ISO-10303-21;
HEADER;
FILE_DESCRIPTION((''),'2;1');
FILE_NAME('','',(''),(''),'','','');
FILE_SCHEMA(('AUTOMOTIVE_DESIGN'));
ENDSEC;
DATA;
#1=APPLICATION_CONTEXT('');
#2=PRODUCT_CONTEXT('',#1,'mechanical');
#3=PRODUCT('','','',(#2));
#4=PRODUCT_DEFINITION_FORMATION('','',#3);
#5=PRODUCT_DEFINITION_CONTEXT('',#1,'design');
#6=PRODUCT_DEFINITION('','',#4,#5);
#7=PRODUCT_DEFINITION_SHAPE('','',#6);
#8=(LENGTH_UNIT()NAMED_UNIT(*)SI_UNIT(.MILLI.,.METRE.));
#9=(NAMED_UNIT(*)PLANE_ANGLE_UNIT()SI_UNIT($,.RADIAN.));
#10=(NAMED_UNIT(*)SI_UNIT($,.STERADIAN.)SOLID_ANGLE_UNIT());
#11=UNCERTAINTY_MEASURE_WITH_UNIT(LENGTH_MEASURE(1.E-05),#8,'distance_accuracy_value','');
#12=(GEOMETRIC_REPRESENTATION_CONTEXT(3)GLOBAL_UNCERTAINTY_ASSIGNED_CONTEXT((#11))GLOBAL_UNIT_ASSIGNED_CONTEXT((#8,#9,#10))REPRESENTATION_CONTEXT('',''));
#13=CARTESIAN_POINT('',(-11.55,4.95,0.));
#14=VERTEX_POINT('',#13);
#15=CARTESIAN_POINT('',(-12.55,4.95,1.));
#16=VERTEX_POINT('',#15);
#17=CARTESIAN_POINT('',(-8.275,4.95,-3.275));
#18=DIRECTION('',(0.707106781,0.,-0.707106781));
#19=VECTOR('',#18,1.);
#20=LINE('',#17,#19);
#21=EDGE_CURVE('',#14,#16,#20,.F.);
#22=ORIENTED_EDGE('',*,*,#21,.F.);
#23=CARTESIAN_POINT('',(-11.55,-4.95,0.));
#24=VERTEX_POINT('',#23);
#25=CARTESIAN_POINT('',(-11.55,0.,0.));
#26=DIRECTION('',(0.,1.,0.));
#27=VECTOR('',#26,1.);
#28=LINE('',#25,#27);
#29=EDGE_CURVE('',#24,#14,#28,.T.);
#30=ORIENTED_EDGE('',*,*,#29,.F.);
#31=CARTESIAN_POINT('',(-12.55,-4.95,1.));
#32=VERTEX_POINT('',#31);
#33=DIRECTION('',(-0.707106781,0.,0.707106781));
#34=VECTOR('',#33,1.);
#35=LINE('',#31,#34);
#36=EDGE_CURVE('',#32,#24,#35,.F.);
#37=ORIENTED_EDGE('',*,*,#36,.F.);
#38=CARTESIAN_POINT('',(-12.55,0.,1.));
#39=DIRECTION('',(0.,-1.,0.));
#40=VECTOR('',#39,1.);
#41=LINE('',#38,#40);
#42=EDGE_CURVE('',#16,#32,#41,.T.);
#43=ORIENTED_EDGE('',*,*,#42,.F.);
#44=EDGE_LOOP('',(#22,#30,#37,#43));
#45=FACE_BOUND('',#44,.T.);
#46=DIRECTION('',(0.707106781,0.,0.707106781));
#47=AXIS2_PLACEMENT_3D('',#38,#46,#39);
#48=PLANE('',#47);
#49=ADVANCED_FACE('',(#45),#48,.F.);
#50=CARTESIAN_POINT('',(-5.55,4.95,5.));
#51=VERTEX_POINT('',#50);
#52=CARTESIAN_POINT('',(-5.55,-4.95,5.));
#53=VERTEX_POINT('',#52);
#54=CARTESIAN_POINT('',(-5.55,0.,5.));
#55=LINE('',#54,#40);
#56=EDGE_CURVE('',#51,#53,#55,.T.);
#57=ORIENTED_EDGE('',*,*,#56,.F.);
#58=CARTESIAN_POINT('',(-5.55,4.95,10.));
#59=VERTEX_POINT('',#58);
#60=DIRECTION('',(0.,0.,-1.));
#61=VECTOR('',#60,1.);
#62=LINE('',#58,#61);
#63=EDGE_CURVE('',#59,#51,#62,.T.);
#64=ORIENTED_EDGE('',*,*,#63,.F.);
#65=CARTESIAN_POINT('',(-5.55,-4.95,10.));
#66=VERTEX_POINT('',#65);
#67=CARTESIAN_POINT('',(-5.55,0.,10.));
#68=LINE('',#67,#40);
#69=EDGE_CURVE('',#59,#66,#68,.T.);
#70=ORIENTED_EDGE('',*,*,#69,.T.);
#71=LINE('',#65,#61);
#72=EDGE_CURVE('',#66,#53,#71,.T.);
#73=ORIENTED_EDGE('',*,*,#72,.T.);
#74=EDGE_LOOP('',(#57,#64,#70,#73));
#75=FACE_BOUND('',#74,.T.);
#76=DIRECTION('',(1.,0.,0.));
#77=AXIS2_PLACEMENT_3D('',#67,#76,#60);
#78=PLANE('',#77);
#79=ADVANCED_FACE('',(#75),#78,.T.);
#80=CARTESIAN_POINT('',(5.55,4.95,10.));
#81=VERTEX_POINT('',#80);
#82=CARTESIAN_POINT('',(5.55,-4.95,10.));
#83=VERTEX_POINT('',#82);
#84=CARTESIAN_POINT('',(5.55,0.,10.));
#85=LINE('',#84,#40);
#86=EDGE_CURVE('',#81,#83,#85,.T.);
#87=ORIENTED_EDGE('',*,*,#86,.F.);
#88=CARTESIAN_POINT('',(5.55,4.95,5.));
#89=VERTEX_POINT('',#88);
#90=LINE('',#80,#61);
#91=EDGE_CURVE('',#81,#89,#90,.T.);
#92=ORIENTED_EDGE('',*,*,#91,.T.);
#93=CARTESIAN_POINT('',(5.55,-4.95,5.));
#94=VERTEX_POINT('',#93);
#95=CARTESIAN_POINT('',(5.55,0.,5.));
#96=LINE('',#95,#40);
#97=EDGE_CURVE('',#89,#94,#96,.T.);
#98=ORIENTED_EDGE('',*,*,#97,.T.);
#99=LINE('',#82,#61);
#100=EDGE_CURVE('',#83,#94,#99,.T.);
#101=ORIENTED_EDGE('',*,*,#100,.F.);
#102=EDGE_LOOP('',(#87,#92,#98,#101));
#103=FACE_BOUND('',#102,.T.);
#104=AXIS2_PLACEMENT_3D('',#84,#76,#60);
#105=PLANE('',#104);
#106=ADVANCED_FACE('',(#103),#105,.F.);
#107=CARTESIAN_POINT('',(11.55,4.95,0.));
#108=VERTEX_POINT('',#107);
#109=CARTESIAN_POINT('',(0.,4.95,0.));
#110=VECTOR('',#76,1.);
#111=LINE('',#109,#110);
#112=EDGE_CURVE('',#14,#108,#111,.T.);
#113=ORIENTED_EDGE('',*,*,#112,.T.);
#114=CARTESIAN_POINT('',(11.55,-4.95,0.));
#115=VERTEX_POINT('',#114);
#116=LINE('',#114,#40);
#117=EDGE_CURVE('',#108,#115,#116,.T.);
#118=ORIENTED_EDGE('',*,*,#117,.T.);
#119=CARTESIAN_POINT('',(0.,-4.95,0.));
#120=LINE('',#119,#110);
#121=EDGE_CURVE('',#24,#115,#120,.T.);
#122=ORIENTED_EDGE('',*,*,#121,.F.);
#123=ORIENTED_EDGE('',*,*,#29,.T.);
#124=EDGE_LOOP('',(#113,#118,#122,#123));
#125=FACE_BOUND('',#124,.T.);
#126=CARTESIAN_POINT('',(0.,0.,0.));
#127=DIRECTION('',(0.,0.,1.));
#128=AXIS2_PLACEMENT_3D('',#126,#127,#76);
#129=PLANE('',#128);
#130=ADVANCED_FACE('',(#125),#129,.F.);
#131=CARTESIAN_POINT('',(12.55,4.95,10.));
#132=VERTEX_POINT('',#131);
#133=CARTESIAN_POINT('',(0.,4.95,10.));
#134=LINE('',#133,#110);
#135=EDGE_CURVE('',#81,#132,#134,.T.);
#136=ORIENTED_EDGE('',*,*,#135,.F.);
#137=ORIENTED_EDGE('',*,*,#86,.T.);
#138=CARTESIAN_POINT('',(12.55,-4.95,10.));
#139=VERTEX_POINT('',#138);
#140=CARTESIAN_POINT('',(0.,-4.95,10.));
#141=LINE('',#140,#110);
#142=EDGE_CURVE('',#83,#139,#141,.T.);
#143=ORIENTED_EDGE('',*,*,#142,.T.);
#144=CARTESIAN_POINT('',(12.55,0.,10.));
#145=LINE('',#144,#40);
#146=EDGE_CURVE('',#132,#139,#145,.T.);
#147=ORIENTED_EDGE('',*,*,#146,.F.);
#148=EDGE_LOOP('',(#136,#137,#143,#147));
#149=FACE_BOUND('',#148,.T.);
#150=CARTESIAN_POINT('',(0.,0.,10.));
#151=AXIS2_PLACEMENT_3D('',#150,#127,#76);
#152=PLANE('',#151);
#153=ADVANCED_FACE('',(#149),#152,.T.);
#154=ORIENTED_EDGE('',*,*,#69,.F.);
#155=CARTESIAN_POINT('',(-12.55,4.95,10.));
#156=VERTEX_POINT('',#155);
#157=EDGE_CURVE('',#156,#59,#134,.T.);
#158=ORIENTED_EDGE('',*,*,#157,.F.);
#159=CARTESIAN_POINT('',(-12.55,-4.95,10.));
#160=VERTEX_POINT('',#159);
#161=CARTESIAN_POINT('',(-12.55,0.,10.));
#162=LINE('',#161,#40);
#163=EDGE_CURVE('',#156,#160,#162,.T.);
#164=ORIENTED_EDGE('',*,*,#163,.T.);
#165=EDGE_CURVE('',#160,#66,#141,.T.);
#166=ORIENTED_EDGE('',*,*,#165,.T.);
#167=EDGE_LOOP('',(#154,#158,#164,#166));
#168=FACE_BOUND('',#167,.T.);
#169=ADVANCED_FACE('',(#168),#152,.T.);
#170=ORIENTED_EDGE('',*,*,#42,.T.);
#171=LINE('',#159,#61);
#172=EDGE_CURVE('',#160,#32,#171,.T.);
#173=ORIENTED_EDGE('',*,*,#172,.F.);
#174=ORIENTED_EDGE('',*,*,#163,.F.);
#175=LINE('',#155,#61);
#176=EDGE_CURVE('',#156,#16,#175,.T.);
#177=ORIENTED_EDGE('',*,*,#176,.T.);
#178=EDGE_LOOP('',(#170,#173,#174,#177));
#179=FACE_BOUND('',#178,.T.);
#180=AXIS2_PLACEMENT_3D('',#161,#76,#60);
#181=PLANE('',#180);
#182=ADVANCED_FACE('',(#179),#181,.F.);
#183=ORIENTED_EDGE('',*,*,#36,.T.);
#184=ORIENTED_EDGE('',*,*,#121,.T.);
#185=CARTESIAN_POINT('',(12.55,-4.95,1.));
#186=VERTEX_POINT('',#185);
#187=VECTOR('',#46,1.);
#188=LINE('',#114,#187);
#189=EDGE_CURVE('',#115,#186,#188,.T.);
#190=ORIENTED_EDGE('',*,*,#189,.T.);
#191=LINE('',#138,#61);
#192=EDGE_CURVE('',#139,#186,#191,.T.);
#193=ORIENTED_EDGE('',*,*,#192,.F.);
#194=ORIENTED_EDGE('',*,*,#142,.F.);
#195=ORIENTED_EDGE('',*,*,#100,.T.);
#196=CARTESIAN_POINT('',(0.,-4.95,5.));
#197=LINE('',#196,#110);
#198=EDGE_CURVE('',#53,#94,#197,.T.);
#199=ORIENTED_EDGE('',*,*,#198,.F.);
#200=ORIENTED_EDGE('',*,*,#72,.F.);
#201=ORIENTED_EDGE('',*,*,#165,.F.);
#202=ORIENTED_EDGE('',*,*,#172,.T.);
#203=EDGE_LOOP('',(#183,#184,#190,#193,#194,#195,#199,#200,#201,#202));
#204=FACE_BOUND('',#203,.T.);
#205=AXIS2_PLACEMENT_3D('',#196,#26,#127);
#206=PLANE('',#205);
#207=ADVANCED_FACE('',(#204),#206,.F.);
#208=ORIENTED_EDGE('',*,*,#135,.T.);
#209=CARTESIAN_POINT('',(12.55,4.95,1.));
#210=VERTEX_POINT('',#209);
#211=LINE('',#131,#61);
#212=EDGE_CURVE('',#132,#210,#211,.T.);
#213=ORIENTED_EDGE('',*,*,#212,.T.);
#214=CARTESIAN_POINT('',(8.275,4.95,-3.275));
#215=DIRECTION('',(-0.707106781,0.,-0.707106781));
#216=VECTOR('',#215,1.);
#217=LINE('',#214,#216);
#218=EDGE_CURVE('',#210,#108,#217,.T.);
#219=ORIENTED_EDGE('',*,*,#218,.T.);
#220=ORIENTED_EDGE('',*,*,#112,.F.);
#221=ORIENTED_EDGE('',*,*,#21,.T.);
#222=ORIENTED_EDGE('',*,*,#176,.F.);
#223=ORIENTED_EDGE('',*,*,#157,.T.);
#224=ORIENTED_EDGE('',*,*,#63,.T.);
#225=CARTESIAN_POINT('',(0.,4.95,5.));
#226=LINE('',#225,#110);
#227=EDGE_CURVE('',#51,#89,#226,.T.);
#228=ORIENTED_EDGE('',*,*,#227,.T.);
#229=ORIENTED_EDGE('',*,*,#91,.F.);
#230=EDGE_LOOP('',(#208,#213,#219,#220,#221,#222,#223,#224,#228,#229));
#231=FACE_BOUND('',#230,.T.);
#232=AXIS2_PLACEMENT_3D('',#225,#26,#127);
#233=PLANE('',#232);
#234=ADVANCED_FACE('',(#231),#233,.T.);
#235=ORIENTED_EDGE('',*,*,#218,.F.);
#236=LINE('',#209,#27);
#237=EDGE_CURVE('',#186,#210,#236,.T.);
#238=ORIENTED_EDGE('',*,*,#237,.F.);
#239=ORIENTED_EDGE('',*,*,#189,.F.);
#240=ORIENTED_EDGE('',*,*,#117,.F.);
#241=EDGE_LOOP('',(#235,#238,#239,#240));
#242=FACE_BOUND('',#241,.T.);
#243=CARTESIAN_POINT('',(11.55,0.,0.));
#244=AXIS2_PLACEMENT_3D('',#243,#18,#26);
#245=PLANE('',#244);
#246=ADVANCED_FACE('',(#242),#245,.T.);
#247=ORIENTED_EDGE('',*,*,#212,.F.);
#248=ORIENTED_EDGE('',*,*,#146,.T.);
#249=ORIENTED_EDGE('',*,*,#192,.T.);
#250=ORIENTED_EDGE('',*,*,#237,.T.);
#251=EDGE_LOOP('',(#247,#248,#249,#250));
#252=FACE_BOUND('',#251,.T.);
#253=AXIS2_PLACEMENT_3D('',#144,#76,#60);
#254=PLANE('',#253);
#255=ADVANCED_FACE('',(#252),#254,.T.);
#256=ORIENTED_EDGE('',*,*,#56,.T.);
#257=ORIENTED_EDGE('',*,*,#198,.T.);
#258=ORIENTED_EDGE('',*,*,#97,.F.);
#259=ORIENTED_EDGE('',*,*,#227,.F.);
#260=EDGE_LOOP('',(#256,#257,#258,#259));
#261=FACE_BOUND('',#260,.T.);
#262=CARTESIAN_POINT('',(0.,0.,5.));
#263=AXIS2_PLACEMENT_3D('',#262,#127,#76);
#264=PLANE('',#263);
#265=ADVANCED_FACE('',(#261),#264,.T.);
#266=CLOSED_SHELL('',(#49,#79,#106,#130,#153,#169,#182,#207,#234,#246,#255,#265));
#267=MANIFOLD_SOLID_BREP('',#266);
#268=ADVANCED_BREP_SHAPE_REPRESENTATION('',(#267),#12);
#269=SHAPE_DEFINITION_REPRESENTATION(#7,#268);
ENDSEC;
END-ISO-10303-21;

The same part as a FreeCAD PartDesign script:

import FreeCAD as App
import Part
import Sketcher

V = App.Vector
Q = App.Units.Quantity


def edges_at(feature, points):
    """Names of the edges that pass closest to the given points."""
    edges = feature.Shape.Edges
    near = lambda p: min(range(len(edges)), key=lambda i: edges[i].distToShape(Part.Vertex(*p))[0])
    return sorted({f"Edge{near(p) + 1}" for p in points})


def add_polygon(sketch, points):
    """Adds a closed chain of lines whose ends are joined by coincident constraints."""
    first, n = sketch.GeometryCount, len(points)
    for a, b in zip(points, points[1:] + points[:1]):
        sketch.addGeometry(Part.LineSegment(App.Vector(*a, 0), App.Vector(*b, 0)), False)
    for i in range(n):
        sketch.addConstraint(Sketcher.Constraint("Coincident", first + i, 2, first + (i + 1) % n, 1))

doc = App.newDocument("Part")
body = doc.addObject("PartDesign::Body", "Body")

# Sketch on XY plane
sketch1 = body.newObject("Sketcher::SketchObject", "Sketch")
sketch1.AttachmentSupport = (doc.getObject("XY_Plane"), [""])
sketch1.MapMode = "FlatFace"
add_polygon(sketch1, [(-6, 5), (-6, -5), (6, -5), (6, 5)])  # lines 0-3
sketch1.addConstraint(Sketcher.Constraint("Vertical", 0))
sketch1.addConstraint(Sketcher.Constraint("Horizontal", 1))
sketch1.addConstraint(Sketcher.Constraint("Vertical", 2))
sketch1.addConstraint(Sketcher.Constraint("Horizontal", 3))
sketch1.addConstraint(Sketcher.Constraint("Symmetric", 0, 2, 2, 2, -1, 1))
sketch1.addConstraint(Sketcher.Constraint("DistanceX", 1, 1, 1, 2, Q("11.1 mm")))
sketch1.addConstraint(Sketcher.Constraint("DistanceY", 0, 2, 0, 1, Q("9.9 mm")))
pad1 = body.newObject("PartDesign::Pad", "Pad")
pad1.Profile = sketch1
pad1.Length = 5

# Sketch on XY plane
sketch2 = body.newObject("Sketcher::SketchObject", "Sketch001")
sketch2.AttachmentSupport = (doc.getObject("XY_Plane"), [""])
sketch2.MapMode = "FlatFace"
add_polygon(sketch2, [(-13, 5), (-13, -5), (-6, -5), (-6, 5)])  # lines 0-3
add_polygon(sketch2, [(6, 5), (6, -5), (13, -5), (13, 5)])  # lines 4-7
sketch2.addConstraint(Sketcher.Constraint("Vertical", 0))
sketch2.addConstraint(Sketcher.Constraint("Horizontal", 1))
sketch2.addConstraint(Sketcher.Constraint("Vertical", 2))
sketch2.addConstraint(Sketcher.Constraint("Horizontal", 3))
sketch2.addConstraint(Sketcher.Constraint("Vertical", 4))
sketch2.addConstraint(Sketcher.Constraint("Horizontal", 5))
sketch2.addConstraint(Sketcher.Constraint("Vertical", 6))
sketch2.addConstraint(Sketcher.Constraint("Horizontal", 7))
sketch2.addConstraint(Sketcher.Constraint("Symmetric", 2, 2, 4, 2, -1, 1))
sketch2.addConstraint(Sketcher.Constraint("Symmetric", 0, 2, 6, 2, -1, 1))
sketch2.addConstraint(Sketcher.Constraint("Horizontal", 1, 2, 4, 2))
sketch2.addConstraint(Sketcher.Constraint("DistanceX", 1, 1, 1, 2, Q("7 mm")))
sketch2.addConstraint(Sketcher.Constraint("DistanceY", 0, 2, 0, 1, Q("9.9 mm")))
sketch2.addConstraint(Sketcher.Constraint("DistanceX", 1, 2, 4, 2, Q("11.1 mm")))
pad2 = body.newObject("PartDesign::Pad", "Pad001")
pad2.Profile = sketch2
pad2.Length = 10
doc.recompute()

chamfer = body.newObject("PartDesign::Chamfer", "Chamfer")
chamfer.Base = (pad2, edges_at(pad2, [(-12.55, 0, 0), (12.55, 0, 0)]))
chamfer.Size = 1

doc.recompute()
